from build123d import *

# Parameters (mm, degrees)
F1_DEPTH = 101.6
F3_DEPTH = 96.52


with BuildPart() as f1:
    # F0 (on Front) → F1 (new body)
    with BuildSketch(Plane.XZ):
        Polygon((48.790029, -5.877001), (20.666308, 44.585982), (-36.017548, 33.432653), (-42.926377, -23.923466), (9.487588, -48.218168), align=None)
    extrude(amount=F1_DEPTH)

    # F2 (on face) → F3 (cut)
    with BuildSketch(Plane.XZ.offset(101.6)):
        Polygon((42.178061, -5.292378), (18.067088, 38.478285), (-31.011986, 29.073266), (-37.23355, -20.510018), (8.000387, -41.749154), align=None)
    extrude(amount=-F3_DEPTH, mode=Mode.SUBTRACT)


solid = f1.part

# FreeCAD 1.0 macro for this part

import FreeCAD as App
import Part
import Sketcher

V = App.Vector
Q = App.Units.Quantity


def add_polygon(sketch, points):
    """Adds a closed chain of lines whose ends are joined by coincident constraints."""
    first, n = sketch.GeometryCount, len(points)
    for a, b in zip(points, points[1:] + points[:1]):
        sketch.addGeometry(Part.LineSegment(App.Vector(*a, 0), App.Vector(*b, 0)), False)
    for i in range(n):
        sketch.addConstraint(Sketcher.Constraint("Coincident", first + i, 2, first + (i + 1) % n, 1))

doc = App.newDocument("Part")
body = doc.addObject("PartDesign::Body", "Body")

sketch1 = body.newObject("Sketcher::SketchObject", "Sketch")
sketch1.AttachmentSupport = (doc.getObject("XZ_Plane"), [""])
sketch1.MapMode = "FlatFace"
add_polygon(sketch1, [(49, -6), (21, 45), (-36, 33), (-43, -24), (9, -48)])
sketch1.addConstraint([
    Sketcher.Constraint("Equal", 0, 1),
    Sketcher.Constraint("Equal", 1, 2),
    Sketcher.Constraint("Equal", 2, 3),
    Sketcher.Constraint("Equal", 3, 4),
    Sketcher.Constraint("DistanceY", 4, 2, -1, 1, 5.877001),
    Sketcher.Constraint("DistanceY", 3, 2, 2, 2, 24.294702),
    Sketcher.Constraint("Distance", 1, 57.770722),
    Sketcher.Constraint("DistanceX", -1, 1, 0, 2, 20.666308),
    Sketcher.Constraint("DistanceX", -1, 1, 4, 2, 48.790029),
    Sketcher.Constraint("DistanceY", 1, 2, 0, 2, 11.153329),
])
pad1 = body.newObject("PartDesign::Pad", "Pad")
pad1.Profile = sketch1
pad1.Length = Q("4 in")

sketch2 = body.newObject("Sketcher::SketchObject", "Sketch001")
sketch2.AttachmentSupport = (doc.getObject("XZ_Plane"), [""])
sketch2.MapMode = "FlatFace"
sketch2.AttachmentOffset = App.Placement(V(0, 0, 4 * 25.4), App.Rotation())
add_polygon(sketch2, [(42, -5), (18, 38), (-31, 29), (-37, -21), (8, -42)])
sketch2.addConstraint([
    Sketcher.Constraint("Equal", 0, 1),
    Sketcher.Constraint("Equal", 1, 2),
    Sketcher.Constraint("Equal", 2, 3),
    Sketcher.Constraint("Equal", 3, 4),
    Sketcher.Constraint("DistanceX", 3, 2, 0, 2, 10.066701),
    Sketcher.Constraint("Distance", 0, 49.972092),
    Sketcher.Constraint("DistanceX", 2, 2, -1, 1, 37.23355),
    Sketcher.Constraint("DistanceX", -1, 1, 4, 2, 42.178061),
    Sketcher.Constraint("DistanceY", 4, 2, -1, 1, 5.292378),
    Sketcher.Constraint("DistanceY", 1, 2, 0, 2, 9.405019),
])
pocket1 = body.newObject("PartDesign::Pocket", "Pocket")
pocket1.Profile = sketch2
pocket1.Length = Q("3.8 in")

doc.recompute()
